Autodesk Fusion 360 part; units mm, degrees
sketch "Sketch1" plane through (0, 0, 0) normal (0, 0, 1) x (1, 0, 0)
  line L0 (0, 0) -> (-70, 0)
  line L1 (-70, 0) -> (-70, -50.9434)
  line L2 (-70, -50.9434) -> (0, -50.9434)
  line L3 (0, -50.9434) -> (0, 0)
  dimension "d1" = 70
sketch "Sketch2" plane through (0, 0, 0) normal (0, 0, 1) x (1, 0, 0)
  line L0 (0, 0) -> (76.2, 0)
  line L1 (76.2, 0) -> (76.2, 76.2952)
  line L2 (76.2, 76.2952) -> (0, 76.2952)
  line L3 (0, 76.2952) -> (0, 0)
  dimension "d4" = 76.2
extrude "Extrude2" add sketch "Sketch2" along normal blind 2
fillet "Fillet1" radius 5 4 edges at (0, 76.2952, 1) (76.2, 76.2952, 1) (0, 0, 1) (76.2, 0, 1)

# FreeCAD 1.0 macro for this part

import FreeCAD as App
import Part
import Sketcher

V = App.Vector
Q = App.Units.Quantity


def edges_at(feature, points):
    """Names of the edges that pass closest to the given points."""
    edges = feature.Shape.Edges
    near = lambda p: min(range(len(edges)), key=lambda i: edges[i].distToShape(Part.Vertex(*p))[0])
    return sorted({f"Edge{near(p) + 1}" for p in points})


def add_polygon(sketch, points):
    """Adds a closed chain of lines whose ends are joined by coincident constraints."""
    first, n = sketch.GeometryCount, len(points)
    for a, b in zip(points, points[1:] + points[:1]):
        sketch.addGeometry(Part.LineSegment(App.Vector(*a, 0), App.Vector(*b, 0)), False)
    for i in range(n):
        sketch.addConstraint(Sketcher.Constraint("Coincident", first + i, 2, first + (i + 1) % n, 1))

doc = App.newDocument("Part")
body = doc.addObject("PartDesign::Body", "Body")

# Sketch on XY plane
sketch1 = body.newObject("Sketcher::SketchObject", "Sketch")
sketch1.AttachmentSupport = (doc.getObject("XY_Plane"), [""])
sketch1.MapMode = "FlatFace"
add_polygon(sketch1, [(0, 76), (0, 0), (76, 0), (76, 76)])  # lines 0-3
sketch1.addConstraint([
    Sketcher.Constraint("Vertical", 0),
    Sketcher.Constraint("Horizontal", 1),
    Sketcher.Constraint("Vertical", 2),
    Sketcher.Constraint("Horizontal", 3),
    Sketcher.Constraint("Coincident", 0, 2, -1, 1),
    Sketcher.Constraint("DistanceX", 1, 1, 1, 2, Q("76.2 mm")),
    Sketcher.Constraint("DistanceY", 0, 2, 0, 1, Q("76.2952 mm")),
])
pad1 = body.newObject("PartDesign::Pad", "Pad")
pad1.Profile = sketch1
pad1.Length = 2
doc.recompute()

fillet = body.newObject("PartDesign::Fillet", "Fillet")
fillet.Base = (pad1, edges_at(pad1, [
    (0, 76.295, 1),
    (76.2, 76.295, 1),
    (0, 0, 1),
    (76.2, 0, 1),
]))
fillet.Radius = 5

doc.recompute()
